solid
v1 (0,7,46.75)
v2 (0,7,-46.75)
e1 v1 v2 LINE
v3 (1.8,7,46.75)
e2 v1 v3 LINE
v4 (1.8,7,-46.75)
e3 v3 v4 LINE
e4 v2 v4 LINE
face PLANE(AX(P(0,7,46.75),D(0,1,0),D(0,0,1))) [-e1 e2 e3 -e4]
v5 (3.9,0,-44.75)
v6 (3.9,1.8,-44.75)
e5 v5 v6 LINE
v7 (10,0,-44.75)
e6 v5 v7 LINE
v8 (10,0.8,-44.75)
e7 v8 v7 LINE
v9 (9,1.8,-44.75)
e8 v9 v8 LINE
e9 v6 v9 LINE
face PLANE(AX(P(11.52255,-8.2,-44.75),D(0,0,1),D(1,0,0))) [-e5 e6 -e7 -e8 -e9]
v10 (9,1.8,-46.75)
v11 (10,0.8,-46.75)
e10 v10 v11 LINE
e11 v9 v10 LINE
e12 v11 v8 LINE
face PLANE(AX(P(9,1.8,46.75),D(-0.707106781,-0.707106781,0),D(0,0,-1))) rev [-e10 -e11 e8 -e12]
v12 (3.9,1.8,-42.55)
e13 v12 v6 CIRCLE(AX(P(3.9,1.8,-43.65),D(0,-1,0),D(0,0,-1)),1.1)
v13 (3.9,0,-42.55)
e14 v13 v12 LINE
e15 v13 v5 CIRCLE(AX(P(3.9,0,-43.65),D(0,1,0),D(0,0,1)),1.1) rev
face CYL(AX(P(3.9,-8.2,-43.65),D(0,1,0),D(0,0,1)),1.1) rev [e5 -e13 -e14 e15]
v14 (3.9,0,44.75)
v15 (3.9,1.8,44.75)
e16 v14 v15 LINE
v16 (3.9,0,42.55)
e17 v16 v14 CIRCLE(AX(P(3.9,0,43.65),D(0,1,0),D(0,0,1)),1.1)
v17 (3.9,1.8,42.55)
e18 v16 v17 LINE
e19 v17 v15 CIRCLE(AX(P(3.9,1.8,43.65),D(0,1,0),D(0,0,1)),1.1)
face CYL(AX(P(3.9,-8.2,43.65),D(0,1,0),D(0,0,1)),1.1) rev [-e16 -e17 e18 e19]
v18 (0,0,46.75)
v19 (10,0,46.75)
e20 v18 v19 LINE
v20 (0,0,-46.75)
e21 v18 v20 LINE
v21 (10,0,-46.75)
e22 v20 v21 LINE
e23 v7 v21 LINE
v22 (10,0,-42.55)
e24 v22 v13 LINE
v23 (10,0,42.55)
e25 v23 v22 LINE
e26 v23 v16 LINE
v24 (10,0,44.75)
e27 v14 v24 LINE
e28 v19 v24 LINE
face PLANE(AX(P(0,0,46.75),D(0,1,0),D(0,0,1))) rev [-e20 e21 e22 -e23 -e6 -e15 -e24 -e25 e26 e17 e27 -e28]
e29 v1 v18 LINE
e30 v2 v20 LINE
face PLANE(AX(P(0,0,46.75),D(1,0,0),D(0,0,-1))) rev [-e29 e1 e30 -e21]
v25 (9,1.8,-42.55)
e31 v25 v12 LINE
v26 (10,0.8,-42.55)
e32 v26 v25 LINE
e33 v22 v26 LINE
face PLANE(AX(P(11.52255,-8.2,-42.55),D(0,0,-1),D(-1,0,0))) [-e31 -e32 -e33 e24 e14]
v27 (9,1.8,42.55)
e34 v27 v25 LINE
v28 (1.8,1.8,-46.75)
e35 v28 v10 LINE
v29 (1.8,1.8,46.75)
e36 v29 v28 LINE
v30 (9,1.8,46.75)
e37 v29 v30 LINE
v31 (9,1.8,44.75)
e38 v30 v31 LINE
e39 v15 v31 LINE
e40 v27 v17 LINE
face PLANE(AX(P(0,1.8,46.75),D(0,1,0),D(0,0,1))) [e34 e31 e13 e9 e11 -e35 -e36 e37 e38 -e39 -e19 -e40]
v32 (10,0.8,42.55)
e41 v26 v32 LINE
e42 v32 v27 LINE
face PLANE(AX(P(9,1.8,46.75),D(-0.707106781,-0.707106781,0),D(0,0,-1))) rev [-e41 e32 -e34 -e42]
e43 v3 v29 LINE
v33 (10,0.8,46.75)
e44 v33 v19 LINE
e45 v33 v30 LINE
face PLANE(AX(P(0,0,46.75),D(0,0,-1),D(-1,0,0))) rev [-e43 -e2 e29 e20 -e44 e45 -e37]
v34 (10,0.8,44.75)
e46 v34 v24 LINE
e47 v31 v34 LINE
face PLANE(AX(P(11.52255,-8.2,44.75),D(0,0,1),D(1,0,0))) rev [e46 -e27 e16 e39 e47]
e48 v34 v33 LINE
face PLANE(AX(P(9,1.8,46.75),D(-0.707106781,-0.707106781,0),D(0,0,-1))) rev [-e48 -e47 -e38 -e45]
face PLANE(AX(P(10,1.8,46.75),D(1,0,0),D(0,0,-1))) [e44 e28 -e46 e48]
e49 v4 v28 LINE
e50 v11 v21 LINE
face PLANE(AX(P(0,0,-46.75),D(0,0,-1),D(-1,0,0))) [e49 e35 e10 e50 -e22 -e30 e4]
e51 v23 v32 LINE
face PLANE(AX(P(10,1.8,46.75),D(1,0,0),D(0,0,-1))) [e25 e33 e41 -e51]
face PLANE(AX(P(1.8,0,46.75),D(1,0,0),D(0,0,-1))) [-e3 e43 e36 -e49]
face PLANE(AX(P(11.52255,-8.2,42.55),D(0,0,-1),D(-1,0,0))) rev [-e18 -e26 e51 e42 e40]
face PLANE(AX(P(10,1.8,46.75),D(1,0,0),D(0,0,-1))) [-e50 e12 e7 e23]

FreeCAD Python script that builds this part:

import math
import FreeCAD as App
import Part
import Sketcher
from FreeCAD import Vector


def edges_at(feature, points):
    """Names of the edges that pass closest to the given points."""
    edges = feature.Shape.Edges
    near = lambda p: min(range(len(edges)), key=lambda i: edges[i].distToShape(Part.Vertex(*p))[0])
    return sorted({f"Edge{near(p) + 1}" for p in points})


def add_polygon(sketch, points):
    """Adds a closed chain of lines whose ends are joined by coincident constraints."""
    first, n = sketch.GeometryCount, len(points)
    for a, b in zip(points, points[1:] + points[:1]):
        sketch.addGeometry(Part.LineSegment(App.Vector(*a, 0), App.Vector(*b, 0)), False)
    for i in range(n):
        sketch.addConstraint(Sketcher.Constraint("Coincident", first + i, 2, first + (i + 1) % n, 1))

doc = App.newDocument("Part")
body = doc.addObject("PartDesign::Body", "Body")

# Sketch on XY plane
sketch1 = body.newObject("Sketcher::SketchObject", "Sketch")
sketch1.AttachmentSupport = (doc.getObject("XY_Plane"), [""])
sketch1.MapMode = "FlatFace"
add_polygon(sketch1, [(0, 0), (10, 0), (10, 1.8), (1.8, 1.8), (1.8, 7), (0, 7)])  # lines 0-5
sketch1.addConstraint(Sketcher.Constraint("Horizontal", 0))
sketch1.addConstraint(Sketcher.Constraint("Vertical", 1))
sketch1.addConstraint(Sketcher.Constraint("Horizontal", 2))
sketch1.addConstraint(Sketcher.Constraint("Vertical", 3))
sketch1.addConstraint(Sketcher.Constraint("Horizontal", 4))
sketch1.addConstraint(Sketcher.Constraint("Vertical", 5))
sketch1.addConstraint(Sketcher.Constraint("Coincident", 5, 2, -1, 1))
sketch1.addConstraint(Sketcher.Constraint("Equal", 4, 1))
sketch1.addConstraint(Sketcher.Constraint("DistanceX", 0, 1, 0, 2, 10.0))
sketch1.addConstraint(Sketcher.Constraint("DistanceY", 5, 2, 5, 1, 7.0))
sketch1.addConstraint(Sketcher.Constraint("DistanceX", 2, 2, 2, 1, 8.2))
pad1 = body.newObject("PartDesign::Pad", "Pad")
pad1.Profile = sketch1
pad1.Length = 93.5
pad1.Midplane = True
doc.recompute()

chamfer = body.newObject("PartDesign::Chamfer", "Chamfer")
chamfer.Base = (pad1, edges_at(pad1, [(10, 1.8, 0)]))
chamfer.Size = 1

# Sketch on XZ plane
sketch2 = body.newObject("Sketcher::SketchObject", "Sketch001")
sketch2.AttachmentSupport = (doc.getObject("XZ_Plane"), [""])
sketch2.MapMode = "FlatFace"
sketch2.AttachmentOffset = App.Placement(Vector(0, 0, -1.8), App.Rotation())
sketch2.addGeometry(Part.LineSegment(Vector(3.9, 44.8, 0), Vector(11.5, 44.8, 0)), False)
sketch2.addGeometry(Part.ArcOfCircle(Part.Circle(Vector(11.5, 43.6, 0), Vector(0, 0, 1), 1.1), math.radians(-90), math.radians(90)), False)
sketch2.addGeometry(Part.LineSegment(Vector(11.5, 42.5, 0), Vector(3.9, 42.5, 0)), False)
sketch2.addGeometry(Part.ArcOfCircle(Part.Circle(Vector(3.9, 43.6, 0), Vector(0, 0, 1), 1.1), math.radians(90), math.radians(270)), False)
sketch2.addConstraint(Sketcher.Constraint("Tangent", 0, 2, 1, 2))
sketch2.addConstraint(Sketcher.Constraint("Tangent", 1, 1, 2, 1))
sketch2.addConstraint(Sketcher.Constraint("Tangent", 2, 2, 3, 2))
sketch2.addConstraint(Sketcher.Constraint("Tangent", 3, 1, 0, 1))
sketch2.addConstraint(Sketcher.Constraint("Horizontal", 0))
sketch2.addConstraint(Sketcher.Constraint("Horizontal", 2))
sketch2.addConstraint(Sketcher.Constraint("Radius", 1, 1.1))
sketch2.addConstraint(Sketcher.Constraint("DistanceX", -1, 1, 3, 3, 3.9))
sketch2.addConstraint(Sketcher.Constraint("DistanceY", -1, 1, 1, 3, 43.65))
sketch2.addConstraint(Sketcher.Constraint("DistanceX", 0, 1, 0, 2, 7.62255))
pocket1 = body.newObject("PartDesign::Pocket", "Pocket")
pocket1.Profile = sketch2
pocket1.Length = 10
pocket1.Reversed = True
doc.recompute()

mirrored = body.newObject("PartDesign::Mirrored", "Mirrored")
mirrored.Originals = [pocket1]
mirrored.MirrorPlane = (doc.getObject("XY_Plane"), [""])
body.Tip = mirrored

doc.recompute()
